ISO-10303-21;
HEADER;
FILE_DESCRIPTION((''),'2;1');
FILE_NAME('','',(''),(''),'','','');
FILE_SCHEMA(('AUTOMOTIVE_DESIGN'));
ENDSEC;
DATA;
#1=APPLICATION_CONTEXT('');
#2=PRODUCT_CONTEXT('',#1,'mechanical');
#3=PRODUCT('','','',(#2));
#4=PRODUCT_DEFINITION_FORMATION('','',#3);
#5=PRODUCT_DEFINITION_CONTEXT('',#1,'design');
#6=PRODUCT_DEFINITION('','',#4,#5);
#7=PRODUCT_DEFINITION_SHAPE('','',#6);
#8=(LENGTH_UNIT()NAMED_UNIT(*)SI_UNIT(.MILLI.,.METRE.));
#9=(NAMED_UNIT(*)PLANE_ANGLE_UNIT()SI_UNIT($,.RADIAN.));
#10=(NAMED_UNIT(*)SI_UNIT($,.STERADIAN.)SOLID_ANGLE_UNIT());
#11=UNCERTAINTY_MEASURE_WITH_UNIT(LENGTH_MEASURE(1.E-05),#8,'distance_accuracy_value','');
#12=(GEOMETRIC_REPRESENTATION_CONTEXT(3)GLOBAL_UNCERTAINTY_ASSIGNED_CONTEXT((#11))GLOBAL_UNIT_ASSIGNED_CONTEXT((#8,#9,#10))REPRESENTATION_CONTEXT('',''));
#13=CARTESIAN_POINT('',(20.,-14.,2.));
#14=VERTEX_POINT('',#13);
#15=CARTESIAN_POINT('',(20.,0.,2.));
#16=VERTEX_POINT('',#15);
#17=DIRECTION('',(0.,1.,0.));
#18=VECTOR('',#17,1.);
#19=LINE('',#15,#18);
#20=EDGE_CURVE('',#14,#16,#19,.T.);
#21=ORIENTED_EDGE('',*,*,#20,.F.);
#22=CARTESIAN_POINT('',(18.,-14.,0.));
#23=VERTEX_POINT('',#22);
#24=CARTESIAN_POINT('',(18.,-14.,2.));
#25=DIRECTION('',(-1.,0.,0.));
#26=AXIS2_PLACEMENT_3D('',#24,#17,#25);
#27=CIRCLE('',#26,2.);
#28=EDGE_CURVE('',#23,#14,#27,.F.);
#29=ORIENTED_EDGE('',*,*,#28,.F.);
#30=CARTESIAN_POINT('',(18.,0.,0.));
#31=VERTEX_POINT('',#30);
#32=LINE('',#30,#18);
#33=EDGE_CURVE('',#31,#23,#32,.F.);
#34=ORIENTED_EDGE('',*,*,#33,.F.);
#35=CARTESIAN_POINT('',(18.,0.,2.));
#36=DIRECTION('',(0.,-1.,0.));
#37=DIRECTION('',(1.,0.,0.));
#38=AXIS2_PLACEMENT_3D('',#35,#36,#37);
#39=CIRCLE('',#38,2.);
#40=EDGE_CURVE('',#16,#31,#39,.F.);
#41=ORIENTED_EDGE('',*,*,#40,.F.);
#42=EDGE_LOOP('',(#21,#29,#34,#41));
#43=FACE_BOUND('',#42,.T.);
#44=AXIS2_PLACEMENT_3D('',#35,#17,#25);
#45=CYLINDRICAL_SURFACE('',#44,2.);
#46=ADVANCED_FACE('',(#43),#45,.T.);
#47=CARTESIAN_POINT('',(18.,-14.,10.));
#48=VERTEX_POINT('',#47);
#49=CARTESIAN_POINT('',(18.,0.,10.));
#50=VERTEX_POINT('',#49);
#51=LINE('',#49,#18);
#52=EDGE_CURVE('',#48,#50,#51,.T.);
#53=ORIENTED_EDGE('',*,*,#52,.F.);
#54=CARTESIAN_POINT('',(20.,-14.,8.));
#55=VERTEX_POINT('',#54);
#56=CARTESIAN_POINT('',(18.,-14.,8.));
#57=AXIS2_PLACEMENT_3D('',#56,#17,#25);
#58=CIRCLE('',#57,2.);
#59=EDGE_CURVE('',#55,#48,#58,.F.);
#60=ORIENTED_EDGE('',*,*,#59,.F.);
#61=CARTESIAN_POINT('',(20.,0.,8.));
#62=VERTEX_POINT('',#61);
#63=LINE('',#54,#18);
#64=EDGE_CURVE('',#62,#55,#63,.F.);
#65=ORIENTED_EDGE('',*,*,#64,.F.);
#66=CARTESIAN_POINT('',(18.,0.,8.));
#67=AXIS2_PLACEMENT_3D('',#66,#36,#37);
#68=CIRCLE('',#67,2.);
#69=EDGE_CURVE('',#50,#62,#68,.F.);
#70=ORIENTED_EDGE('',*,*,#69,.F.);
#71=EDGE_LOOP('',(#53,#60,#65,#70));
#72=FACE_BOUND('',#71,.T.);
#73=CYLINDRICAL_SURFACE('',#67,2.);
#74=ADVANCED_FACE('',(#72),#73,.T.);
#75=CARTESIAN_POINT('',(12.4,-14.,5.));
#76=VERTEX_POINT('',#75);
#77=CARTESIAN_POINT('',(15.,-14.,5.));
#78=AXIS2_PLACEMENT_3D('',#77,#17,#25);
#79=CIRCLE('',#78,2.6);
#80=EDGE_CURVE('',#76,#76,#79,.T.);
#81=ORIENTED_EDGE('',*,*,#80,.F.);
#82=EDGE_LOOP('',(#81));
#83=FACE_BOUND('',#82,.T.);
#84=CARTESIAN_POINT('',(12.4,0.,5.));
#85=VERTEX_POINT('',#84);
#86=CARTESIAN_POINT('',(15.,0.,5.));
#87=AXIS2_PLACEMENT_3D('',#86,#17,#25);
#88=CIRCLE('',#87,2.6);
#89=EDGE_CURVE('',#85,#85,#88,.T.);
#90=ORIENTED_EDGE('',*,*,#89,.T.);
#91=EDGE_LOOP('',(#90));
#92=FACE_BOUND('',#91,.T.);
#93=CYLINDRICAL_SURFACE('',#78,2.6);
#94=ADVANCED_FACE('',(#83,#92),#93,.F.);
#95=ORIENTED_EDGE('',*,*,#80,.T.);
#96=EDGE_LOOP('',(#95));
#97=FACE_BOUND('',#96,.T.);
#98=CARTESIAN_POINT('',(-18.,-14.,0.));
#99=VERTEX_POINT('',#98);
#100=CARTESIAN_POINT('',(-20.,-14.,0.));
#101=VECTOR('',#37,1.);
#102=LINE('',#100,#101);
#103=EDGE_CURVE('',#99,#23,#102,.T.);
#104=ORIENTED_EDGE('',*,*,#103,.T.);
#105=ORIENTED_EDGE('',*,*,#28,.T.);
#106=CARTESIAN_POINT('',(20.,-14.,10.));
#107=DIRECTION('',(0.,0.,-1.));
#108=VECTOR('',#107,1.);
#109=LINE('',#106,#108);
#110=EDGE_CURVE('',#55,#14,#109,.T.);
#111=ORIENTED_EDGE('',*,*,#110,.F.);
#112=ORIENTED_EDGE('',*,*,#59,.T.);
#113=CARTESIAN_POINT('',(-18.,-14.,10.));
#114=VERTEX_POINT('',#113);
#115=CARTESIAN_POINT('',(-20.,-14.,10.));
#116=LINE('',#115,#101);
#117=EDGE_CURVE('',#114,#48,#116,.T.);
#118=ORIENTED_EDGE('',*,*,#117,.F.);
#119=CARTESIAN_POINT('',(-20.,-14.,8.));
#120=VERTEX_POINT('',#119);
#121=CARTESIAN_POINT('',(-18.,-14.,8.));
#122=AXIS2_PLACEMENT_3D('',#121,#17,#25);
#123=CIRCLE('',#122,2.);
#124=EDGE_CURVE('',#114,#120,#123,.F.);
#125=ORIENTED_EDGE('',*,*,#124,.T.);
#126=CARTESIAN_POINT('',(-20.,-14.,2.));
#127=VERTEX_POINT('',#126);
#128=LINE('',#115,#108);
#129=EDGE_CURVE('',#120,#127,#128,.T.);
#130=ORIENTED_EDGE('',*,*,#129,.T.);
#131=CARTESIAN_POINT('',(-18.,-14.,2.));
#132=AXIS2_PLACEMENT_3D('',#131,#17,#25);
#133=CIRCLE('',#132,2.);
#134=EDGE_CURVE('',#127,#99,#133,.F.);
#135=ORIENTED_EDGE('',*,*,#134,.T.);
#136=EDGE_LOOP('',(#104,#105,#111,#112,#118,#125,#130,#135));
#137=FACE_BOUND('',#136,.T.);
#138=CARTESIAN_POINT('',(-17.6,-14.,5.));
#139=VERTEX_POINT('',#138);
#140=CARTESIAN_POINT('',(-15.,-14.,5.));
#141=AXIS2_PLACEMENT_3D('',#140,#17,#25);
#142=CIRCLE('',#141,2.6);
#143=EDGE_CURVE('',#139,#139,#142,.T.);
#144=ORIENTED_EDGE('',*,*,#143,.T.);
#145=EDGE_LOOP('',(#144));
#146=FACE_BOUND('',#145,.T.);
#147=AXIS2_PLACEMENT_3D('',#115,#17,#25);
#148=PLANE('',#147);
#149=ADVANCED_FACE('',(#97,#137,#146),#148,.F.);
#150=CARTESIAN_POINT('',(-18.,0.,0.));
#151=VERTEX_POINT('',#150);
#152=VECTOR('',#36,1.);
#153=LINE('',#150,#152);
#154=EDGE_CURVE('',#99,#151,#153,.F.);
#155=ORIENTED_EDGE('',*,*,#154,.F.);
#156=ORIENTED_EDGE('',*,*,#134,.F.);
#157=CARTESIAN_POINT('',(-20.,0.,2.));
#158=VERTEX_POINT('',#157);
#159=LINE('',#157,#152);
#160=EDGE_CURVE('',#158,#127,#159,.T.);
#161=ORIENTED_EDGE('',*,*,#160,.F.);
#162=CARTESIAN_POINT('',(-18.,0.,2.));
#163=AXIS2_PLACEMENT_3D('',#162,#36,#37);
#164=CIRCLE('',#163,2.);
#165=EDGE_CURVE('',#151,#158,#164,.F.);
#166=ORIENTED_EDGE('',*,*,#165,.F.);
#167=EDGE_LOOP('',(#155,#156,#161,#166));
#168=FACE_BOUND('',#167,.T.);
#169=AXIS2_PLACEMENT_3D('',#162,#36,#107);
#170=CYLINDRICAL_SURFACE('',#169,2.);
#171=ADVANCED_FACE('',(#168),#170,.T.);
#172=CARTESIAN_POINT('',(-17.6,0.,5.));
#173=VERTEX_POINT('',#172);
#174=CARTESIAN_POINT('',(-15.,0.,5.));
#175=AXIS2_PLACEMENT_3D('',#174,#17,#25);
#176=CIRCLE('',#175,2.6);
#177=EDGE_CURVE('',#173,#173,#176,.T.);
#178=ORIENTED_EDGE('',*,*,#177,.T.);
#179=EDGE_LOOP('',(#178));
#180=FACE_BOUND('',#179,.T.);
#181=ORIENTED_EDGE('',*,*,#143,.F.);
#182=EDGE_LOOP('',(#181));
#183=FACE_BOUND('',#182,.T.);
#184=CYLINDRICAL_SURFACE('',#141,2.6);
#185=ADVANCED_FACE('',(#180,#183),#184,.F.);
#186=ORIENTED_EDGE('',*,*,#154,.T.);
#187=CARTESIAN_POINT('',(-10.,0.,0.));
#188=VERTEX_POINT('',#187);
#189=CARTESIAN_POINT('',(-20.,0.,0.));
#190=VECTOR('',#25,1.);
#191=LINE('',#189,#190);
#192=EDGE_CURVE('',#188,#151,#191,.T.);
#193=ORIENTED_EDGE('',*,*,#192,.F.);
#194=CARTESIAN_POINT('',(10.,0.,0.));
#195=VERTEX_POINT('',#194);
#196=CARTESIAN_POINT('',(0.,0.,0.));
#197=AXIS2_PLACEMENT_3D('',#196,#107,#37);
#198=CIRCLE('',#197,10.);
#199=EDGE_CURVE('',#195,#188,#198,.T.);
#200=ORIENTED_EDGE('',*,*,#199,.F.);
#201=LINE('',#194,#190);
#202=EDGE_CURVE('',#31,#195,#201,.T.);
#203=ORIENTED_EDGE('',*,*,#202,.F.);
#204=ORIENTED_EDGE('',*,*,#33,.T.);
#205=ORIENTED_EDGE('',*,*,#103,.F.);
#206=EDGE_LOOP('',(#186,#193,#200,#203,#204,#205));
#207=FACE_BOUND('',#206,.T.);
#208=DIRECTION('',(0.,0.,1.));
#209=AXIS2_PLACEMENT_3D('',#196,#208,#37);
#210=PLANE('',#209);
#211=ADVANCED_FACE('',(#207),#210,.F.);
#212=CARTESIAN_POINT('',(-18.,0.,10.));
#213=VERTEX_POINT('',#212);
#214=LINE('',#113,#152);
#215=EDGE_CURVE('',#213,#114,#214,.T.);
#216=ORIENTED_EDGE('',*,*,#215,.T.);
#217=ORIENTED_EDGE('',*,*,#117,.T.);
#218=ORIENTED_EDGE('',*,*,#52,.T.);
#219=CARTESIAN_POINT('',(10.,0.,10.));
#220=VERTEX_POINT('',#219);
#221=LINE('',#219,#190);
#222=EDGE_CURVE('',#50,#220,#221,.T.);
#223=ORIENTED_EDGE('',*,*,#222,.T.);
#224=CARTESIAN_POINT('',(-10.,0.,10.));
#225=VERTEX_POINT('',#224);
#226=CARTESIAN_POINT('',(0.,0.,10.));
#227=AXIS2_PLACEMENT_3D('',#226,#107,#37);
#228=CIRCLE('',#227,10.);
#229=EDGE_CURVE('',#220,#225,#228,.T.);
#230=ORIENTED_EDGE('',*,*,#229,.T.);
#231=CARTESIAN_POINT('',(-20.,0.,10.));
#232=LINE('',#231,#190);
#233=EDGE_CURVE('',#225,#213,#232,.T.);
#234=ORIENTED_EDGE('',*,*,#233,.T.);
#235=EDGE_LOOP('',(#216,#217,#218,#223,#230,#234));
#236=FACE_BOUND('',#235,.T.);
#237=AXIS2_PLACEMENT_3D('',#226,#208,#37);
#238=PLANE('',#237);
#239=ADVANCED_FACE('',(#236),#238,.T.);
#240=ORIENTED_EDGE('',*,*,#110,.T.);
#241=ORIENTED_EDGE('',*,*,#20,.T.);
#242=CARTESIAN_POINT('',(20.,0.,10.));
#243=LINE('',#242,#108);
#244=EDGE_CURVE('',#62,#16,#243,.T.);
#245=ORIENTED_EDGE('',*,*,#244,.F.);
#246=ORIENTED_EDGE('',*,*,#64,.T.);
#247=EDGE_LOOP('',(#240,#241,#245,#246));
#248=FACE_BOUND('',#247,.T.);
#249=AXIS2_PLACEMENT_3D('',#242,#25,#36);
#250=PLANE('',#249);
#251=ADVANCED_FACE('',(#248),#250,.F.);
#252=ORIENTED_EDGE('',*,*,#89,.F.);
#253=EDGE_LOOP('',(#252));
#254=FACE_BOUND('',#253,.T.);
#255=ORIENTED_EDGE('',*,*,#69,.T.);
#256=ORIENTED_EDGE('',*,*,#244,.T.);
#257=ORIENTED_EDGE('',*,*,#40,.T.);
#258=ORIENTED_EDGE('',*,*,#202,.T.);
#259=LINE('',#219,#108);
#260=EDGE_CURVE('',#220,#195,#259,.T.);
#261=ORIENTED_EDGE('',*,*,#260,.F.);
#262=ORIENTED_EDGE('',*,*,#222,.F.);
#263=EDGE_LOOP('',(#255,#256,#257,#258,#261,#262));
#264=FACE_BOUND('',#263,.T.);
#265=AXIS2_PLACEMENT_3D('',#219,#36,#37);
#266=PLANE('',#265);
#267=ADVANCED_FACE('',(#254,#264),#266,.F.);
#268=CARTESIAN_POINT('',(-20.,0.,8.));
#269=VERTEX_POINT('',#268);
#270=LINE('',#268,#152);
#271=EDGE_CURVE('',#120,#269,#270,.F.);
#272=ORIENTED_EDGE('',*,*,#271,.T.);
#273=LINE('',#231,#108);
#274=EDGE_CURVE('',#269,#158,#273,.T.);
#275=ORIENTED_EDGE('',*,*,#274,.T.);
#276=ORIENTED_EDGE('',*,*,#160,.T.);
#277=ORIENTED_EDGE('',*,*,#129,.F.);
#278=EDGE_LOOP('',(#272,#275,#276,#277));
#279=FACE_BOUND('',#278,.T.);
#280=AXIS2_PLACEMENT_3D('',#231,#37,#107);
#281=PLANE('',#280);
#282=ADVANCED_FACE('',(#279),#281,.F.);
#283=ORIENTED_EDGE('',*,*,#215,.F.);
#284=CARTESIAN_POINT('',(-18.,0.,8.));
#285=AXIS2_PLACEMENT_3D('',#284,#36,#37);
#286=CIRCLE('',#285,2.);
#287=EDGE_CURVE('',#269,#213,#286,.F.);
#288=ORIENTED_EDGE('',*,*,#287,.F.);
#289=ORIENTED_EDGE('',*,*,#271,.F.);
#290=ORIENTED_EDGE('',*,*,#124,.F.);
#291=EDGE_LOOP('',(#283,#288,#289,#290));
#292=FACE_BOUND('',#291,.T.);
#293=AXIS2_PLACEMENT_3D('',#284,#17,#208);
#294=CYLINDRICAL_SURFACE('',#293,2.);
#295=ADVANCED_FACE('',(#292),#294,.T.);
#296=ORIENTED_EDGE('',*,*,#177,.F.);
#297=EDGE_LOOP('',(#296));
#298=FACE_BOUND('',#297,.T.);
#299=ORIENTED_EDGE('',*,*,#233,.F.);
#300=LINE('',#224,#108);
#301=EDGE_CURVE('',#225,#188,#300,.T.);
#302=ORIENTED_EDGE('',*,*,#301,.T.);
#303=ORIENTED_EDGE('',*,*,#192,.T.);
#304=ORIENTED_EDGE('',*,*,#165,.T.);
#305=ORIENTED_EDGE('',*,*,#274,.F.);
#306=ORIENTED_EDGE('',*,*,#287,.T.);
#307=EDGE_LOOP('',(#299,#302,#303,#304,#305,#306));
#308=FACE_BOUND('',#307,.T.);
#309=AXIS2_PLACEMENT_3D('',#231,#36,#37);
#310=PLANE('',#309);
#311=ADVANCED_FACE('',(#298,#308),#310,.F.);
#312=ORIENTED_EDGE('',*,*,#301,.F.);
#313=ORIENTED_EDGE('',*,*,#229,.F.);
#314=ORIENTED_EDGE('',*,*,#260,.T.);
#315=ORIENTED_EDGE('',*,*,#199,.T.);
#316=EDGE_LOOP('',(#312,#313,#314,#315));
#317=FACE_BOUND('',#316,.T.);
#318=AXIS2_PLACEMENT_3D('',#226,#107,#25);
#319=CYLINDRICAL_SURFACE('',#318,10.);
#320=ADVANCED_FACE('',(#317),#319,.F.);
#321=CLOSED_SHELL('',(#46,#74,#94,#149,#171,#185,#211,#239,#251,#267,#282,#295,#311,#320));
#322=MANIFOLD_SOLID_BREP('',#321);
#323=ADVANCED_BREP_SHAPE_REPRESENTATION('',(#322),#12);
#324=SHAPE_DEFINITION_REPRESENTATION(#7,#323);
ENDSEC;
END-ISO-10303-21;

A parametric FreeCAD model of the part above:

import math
import FreeCAD as App
import Part
import Sketcher

V = App.Vector
Q = App.Units.Quantity


def edges_at(feature, points):
    """Names of the edges that pass closest to the given points."""
    edges = feature.Shape.Edges
    near = lambda p: min(range(len(edges)), key=lambda i: edges[i].distToShape(Part.Vertex(*p))[0])
    return sorted({f"Edge{near(p) + 1}" for p in points})

doc = App.newDocument("Part")
body = doc.addObject("PartDesign::Body", "Body")

sketch1 = body.newObject("Sketcher::SketchObject", "Sketch")
sketch1.AttachmentSupport = (doc.getObject("XY_Plane"), [""])
sketch1.MapMode = "FlatFace"
sketch1.addGeometry([
    Part.LineSegment(V(20, 0, 0), V(10, 0, 0)),
    Part.ArcOfCircle(Part.Circle(V(0, 0, 0), V(0, 0, 1), 10), math.radians(180), math.radians(360)),
    Part.LineSegment(V(-10, 0, 0), V(-20, 0, 0)),
    Part.LineSegment(V(-20, 0, 0), V(-20, -14, 0)),
    Part.LineSegment(V(-20, -14, 0), V(20, -14, 0)),
    Part.LineSegment(V(20, -14, 0), V(20, 0, 0)),
], False)
sketch1.addConstraint([
    Sketcher.Constraint("Coincident", 0, 2, 1, 2),
    Sketcher.Constraint("Coincident", 1, 1, 2, 1),
    Sketcher.Constraint("Coincident", 2, 2, 3, 1),
    Sketcher.Constraint("Coincident", 3, 2, 4, 1),
    Sketcher.Constraint("Coincident", 4, 2, 5, 1),
    Sketcher.Constraint("Coincident", 5, 2, 0, 1),
    Sketcher.Constraint("Horizontal", 0),
    Sketcher.Constraint("Horizontal", 2),
    Sketcher.Constraint("Vertical", 3),
    Sketcher.Constraint("Horizontal", 4),
    Sketcher.Constraint("Vertical", 5),
    Sketcher.Constraint("Coincident", 1, 3, -1, 1),
    Sketcher.Constraint("Symmetric", 2, 2, 5, 2, -1, 1),
    Sketcher.Constraint("PointOnObject", 0, 2, -1),
    Sketcher.Constraint("Radius", 1, Q("10 mm")),
    Sketcher.Constraint("DistanceX", 0, 2, 0, 1, Q("10 mm")),
    Sketcher.Constraint("DistanceY", 3, 2, 3, 1, Q("14 mm")),
])
pad1 = body.newObject("PartDesign::Pad", "Pad")
pad1.Profile = sketch1
pad1.Length = 10
doc.recompute()

fillet = body.newObject("PartDesign::Fillet", "Fillet")
fillet.Base = (pad1, edges_at(pad1, [
    (-20, -7, 10),
    (20, -7, 10),
    (20, -7, 0),
    (-20, -7, 0),
]))
fillet.Radius = 2

sketch2 = body.newObject("Sketcher::SketchObject", "Sketch001")
sketch2.AttachmentSupport = (doc.getObject("XZ_Plane"), [""])
sketch2.MapMode = "FlatFace"
sketch2.addGeometry([
    Part.Circle(V(-15, 5, 0), V(0, 0, 1), 2.6),
    Part.Circle(V(15, 5, 0), V(0, 0, 1), 2.6),
], False)
sketch2.addConstraint([
    Sketcher.Constraint("Equal", 0, 1),
    Sketcher.Constraint("Symmetric", 0, 3, 1, 3, -2),
    Sketcher.Constraint("Diameter", 0, Q("5.2 mm")),
    Sketcher.Constraint("DistanceX", 0, 3, -1, 1, Q("15 mm")),
    Sketcher.Constraint("DistanceY", -1, 1, 0, 3, Q("5 mm")),
])
pocket1 = body.newObject("PartDesign::Pocket", "Pocket")
pocket1.Profile = sketch2
pocket1.Type = "ThroughAll"
pocket1.Reversed = True

doc.recompute()
